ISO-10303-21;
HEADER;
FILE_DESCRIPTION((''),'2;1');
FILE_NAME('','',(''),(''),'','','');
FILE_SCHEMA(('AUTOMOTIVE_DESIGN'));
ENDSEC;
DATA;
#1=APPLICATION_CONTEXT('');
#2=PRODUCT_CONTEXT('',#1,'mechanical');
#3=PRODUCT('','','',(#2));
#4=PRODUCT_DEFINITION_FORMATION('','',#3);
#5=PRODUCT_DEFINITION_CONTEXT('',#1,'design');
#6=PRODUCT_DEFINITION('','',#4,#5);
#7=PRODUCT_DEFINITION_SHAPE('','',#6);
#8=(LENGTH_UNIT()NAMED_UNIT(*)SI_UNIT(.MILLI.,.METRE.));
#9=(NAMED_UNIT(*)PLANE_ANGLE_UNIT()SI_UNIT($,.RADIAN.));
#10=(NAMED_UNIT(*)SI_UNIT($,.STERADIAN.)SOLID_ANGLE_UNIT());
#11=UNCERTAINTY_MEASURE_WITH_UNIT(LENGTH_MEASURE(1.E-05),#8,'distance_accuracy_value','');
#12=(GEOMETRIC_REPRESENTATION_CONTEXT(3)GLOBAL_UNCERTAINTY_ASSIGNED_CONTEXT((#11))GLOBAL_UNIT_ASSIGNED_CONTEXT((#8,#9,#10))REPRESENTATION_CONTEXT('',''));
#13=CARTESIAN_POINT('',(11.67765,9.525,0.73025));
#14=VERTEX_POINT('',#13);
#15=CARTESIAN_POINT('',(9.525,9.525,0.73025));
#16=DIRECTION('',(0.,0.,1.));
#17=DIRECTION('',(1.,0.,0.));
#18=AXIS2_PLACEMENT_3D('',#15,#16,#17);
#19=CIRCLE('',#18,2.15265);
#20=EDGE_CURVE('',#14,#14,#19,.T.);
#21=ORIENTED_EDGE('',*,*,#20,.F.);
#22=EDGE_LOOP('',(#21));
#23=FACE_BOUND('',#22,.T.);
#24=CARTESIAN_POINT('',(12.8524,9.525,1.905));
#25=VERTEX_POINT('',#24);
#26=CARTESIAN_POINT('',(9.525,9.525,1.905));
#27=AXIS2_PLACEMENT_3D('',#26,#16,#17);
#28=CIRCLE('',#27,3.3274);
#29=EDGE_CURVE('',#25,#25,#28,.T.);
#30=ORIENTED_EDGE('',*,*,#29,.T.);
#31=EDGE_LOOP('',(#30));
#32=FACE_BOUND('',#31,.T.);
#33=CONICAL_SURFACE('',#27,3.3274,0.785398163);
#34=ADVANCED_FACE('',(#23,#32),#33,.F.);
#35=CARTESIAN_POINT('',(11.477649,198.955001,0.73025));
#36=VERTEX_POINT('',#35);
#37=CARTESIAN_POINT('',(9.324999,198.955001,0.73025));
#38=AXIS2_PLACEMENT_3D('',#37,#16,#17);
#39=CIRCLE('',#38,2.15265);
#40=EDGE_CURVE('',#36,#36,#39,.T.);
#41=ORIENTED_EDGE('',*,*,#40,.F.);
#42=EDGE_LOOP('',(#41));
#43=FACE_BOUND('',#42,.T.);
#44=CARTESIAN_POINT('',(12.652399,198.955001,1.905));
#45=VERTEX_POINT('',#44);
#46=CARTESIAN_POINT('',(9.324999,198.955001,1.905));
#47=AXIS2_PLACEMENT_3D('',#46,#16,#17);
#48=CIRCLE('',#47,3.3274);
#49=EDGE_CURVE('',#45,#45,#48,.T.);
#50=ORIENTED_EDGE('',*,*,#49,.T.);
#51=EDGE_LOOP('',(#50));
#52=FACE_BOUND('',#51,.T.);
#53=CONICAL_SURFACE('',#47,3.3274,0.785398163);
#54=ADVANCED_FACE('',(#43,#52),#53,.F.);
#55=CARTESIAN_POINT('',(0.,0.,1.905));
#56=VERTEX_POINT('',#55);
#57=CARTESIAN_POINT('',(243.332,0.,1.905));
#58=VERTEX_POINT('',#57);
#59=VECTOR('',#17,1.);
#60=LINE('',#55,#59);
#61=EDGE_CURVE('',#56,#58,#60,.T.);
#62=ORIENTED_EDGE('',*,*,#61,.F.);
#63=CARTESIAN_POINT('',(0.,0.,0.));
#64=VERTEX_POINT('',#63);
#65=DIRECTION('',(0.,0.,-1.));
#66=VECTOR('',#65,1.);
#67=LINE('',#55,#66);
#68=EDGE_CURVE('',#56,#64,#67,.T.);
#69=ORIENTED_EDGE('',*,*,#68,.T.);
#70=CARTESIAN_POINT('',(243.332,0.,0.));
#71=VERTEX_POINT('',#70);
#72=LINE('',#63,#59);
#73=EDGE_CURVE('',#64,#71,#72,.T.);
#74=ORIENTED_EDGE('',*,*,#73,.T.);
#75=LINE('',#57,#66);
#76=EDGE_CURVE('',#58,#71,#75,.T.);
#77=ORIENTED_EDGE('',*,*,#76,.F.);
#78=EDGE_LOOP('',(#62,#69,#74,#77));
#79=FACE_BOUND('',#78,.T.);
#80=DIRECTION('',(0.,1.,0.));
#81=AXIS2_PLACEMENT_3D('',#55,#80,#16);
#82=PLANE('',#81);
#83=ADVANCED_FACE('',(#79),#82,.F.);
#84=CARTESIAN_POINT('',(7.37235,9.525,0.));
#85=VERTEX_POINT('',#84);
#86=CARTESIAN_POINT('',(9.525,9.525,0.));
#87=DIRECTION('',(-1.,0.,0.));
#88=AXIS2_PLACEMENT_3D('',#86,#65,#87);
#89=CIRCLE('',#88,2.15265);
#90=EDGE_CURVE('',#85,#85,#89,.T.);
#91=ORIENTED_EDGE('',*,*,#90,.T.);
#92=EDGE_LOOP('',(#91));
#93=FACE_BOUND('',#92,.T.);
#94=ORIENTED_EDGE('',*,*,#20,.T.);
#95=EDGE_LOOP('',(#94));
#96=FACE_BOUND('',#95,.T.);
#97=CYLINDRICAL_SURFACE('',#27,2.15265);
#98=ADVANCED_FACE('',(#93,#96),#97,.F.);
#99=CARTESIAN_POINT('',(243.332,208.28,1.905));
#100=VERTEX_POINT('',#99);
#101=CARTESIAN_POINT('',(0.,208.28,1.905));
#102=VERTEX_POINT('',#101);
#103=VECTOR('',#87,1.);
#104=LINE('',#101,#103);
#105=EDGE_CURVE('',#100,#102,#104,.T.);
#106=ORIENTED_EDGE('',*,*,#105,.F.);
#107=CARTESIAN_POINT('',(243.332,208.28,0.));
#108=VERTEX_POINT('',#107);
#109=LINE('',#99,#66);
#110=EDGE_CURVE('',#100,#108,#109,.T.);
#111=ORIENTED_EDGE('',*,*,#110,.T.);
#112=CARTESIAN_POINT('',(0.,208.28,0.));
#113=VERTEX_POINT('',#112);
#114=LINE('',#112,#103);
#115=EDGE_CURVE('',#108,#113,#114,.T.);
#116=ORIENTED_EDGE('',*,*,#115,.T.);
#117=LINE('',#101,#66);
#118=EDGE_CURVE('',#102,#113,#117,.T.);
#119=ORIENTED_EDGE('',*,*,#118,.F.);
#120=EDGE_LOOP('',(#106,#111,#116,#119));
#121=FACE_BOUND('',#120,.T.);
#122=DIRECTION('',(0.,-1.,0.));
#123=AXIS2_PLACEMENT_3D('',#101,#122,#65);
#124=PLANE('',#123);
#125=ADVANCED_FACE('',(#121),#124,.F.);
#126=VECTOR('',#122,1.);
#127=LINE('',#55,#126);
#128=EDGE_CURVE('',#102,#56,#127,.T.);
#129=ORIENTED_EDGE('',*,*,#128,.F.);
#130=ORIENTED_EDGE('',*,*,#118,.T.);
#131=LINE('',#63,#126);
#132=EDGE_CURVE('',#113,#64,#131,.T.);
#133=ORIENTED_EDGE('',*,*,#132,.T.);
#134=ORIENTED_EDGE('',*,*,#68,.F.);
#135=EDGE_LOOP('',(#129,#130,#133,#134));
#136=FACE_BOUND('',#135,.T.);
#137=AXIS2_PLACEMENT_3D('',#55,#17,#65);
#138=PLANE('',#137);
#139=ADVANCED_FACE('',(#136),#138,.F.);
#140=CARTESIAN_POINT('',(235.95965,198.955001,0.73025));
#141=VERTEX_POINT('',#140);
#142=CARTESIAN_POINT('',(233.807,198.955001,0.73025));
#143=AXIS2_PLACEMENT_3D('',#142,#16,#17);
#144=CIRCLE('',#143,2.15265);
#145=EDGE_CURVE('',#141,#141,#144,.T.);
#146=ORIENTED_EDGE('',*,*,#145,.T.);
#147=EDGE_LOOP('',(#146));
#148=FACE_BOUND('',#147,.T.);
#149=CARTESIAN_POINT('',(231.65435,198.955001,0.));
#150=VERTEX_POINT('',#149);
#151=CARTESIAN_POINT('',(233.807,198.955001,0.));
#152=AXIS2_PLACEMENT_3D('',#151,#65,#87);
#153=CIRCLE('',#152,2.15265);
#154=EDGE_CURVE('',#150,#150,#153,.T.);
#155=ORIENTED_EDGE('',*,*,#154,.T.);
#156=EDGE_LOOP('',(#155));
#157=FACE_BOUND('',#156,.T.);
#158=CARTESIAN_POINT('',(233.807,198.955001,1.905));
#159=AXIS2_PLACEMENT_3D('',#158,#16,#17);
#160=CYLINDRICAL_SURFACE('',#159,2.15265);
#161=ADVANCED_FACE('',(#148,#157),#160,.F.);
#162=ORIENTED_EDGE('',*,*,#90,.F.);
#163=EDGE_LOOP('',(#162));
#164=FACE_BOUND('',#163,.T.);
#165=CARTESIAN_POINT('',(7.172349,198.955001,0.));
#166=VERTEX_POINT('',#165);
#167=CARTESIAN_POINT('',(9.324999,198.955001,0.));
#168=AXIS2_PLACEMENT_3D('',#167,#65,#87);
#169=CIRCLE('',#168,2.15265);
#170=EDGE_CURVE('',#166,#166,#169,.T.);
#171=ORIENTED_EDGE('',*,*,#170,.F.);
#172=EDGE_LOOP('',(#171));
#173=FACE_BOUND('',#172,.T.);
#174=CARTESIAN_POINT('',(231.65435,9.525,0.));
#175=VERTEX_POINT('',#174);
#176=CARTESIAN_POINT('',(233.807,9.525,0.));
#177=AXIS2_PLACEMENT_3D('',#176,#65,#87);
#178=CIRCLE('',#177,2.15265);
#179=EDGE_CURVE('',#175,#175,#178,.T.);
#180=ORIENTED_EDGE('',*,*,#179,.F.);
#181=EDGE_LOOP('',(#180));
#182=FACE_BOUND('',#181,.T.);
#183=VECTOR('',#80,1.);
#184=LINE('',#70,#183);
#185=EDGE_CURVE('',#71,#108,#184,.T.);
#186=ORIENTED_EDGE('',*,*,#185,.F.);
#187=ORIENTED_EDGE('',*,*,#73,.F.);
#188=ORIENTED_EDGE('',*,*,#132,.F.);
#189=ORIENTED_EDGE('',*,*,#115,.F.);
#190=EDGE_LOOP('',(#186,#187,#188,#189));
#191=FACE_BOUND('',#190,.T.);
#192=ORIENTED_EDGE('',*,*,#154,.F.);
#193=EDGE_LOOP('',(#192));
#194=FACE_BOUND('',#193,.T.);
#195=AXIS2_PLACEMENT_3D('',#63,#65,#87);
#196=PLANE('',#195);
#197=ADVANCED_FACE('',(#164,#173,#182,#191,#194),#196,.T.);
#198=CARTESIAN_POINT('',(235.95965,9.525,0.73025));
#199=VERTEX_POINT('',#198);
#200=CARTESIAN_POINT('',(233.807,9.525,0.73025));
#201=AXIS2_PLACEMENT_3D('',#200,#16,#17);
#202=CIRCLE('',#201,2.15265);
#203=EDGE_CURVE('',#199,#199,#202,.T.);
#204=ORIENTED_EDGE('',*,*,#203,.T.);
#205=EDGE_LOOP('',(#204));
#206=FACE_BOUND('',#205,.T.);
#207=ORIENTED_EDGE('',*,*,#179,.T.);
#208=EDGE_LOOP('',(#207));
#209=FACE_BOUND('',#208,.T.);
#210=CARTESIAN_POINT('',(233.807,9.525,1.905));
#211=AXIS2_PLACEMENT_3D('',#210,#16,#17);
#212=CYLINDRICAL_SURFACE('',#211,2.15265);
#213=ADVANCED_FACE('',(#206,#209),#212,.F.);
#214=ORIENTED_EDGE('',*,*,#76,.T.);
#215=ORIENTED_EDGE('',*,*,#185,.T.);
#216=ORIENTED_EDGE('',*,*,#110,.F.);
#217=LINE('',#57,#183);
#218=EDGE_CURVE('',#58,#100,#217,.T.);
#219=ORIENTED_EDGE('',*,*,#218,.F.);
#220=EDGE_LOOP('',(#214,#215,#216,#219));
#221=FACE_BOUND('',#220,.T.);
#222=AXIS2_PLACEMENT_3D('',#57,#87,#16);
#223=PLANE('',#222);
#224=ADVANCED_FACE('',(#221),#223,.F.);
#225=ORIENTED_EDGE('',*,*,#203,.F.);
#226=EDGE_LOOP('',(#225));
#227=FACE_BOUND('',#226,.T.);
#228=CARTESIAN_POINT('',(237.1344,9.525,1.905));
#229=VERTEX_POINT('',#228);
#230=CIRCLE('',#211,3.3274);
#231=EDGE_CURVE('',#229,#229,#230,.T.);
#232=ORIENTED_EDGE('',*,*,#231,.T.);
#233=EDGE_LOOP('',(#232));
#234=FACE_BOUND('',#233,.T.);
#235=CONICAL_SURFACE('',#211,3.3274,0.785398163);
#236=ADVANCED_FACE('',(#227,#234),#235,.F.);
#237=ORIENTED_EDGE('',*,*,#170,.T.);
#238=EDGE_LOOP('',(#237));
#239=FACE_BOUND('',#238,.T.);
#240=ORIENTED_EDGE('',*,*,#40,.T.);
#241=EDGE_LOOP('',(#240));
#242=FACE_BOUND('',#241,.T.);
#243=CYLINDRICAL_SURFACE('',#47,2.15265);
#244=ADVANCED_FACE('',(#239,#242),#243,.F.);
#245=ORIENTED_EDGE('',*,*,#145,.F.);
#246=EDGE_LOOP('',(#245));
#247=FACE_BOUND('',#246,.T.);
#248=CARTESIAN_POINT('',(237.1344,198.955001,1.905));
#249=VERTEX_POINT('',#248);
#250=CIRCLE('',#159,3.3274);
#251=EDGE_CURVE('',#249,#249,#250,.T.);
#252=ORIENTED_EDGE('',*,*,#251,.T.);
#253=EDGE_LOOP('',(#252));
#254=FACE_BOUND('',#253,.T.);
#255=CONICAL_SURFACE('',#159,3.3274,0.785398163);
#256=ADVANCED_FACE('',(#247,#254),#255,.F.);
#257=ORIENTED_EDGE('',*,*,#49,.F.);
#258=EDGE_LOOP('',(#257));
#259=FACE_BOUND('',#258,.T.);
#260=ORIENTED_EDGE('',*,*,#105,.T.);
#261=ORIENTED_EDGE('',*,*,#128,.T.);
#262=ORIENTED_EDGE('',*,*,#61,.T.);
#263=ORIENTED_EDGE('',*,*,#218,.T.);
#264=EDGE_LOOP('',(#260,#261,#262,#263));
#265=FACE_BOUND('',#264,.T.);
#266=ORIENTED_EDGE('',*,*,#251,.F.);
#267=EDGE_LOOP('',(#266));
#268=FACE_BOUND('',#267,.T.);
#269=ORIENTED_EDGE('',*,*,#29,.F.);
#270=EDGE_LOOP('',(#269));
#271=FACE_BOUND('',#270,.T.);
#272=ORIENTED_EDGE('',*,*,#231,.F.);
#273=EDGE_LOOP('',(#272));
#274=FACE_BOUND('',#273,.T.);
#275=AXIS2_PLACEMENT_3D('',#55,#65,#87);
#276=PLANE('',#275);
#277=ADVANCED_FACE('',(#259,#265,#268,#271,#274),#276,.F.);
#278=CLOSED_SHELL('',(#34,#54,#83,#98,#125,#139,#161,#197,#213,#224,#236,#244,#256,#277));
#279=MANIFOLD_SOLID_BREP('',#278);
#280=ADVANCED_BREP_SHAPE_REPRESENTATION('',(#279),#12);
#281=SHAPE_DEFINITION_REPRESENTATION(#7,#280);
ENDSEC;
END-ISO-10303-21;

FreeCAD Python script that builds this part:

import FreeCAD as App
import Part
import Sketcher
from FreeCAD import Vector
Q = App.Units.Quantity

doc = App.newDocument("Part")
body = doc.addObject("PartDesign::Body", "Body")

sketch1 = body.newObject("Sketcher::SketchObject", "Sketch")
sketch1.AttachmentSupport = (doc.getObject("XY_Plane"), [""])
sketch1.MapMode = "FlatFace"
sketch1.addGeometry([
    Part.LineSegment(Vector(0, 208.28, 0), Vector(0, 0, 0)),
    Part.LineSegment(Vector(0, 0, 0), Vector(243.332, 0, 0)),
    Part.LineSegment(Vector(243.332, 0, 0), Vector(243.332, 208.28, 0)),
    Part.LineSegment(Vector(243.332, 208.28, 0), Vector(0, 208.28, 0)),
], False)
sketch1.addConstraint([
    Sketcher.Constraint("Coincident", 0, 2, 1, 1),
    Sketcher.Constraint("Coincident", 1, 2, 2, 1),
    Sketcher.Constraint("Coincident", 2, 2, 3, 1),
    Sketcher.Constraint("Coincident", 3, 2, 0, 1),
    Sketcher.Constraint("Vertical", 0),
    Sketcher.Constraint("Horizontal", 1),
    Sketcher.Constraint("Vertical", 2),
    Sketcher.Constraint("Horizontal", 3),
    Sketcher.Constraint("Coincident", 0, 2, -1, 1),
    Sketcher.Constraint("DistanceY", 0, 2, 0, 1, Q("8.2 in")),
    Sketcher.Constraint("DistanceX", 1, 1, 1, 2, Q("9.58 in")),
])
pad1 = body.newObject("PartDesign::Pad", "Pad")
pad1.Profile = sketch1
pad1.Length = Q("0.075 in")

sketch2 = body.newObject("Sketcher::SketchObject", "Sketch001")
sketch2.AttachmentSupport = (doc.getObject("YZ_Plane"), [""])
sketch2.MapMode = "FlatFace"
sketch2.AttachmentOffset = App.Placement(Vector(0, 0, 9.324999), App.Rotation())
sketch2.addGeometry([
    Part.LineSegment(Vector(198.955001, 0, 0), Vector(198.955001, 1.905, 0)),
    Part.LineSegment(Vector(198.955001, 1.905, 0), Vector(195.627601, 1.905, 0)),
    Part.LineSegment(Vector(195.627601, 1.905, 0), Vector(196.802351, 0.73025, 0)),
    Part.LineSegment(Vector(196.802351, 0.73025, 0), Vector(196.802351, 0, 0)),
    Part.LineSegment(Vector(196.802351, 0, 0), Vector(198.955001, 0, 0)),
], False)
sketch2.addGeometry(Part.LineSegment(Vector(198.955001, 1.905, 0), Vector(198.955001, 0, 0)), True)
sketch2.addConstraint([
    Sketcher.Constraint("Coincident", 0, 2, 1, 1),
    Sketcher.Constraint("Coincident", 1, 2, 2, 1),
    Sketcher.Constraint("Coincident", 2, 2, 3, 1),
    Sketcher.Constraint("Coincident", 3, 2, 4, 1),
    Sketcher.Constraint("Coincident", 4, 2, 0, 1),
    Sketcher.Constraint("Vertical", 0),
    Sketcher.Constraint("Horizontal", 1),
    Sketcher.Constraint("Vertical", 3),
    Sketcher.Constraint("Horizontal", 4),
    Sketcher.Constraint("Vertical", 5),
    Sketcher.Constraint("Coincident", 5, 1, 0, 2),
    Sketcher.Constraint("PointOnObject", 3, 2, -1),
    Sketcher.Constraint("PointOnObject", 5, 2, -1),
    Sketcher.Constraint("Angle", 2, Q("-45 deg")),
    Sketcher.Constraint("DistanceX", 1, 2, 1, 1, Q("0.131 in")),
    Sketcher.Constraint("DistanceY", 0, 1, 0, 2, Q("0.075 in")),
    Sketcher.Constraint("DistanceX", 4, 1, 4, 2, Q("2.15265 mm")),
    Sketcher.Constraint("DistanceX", -1, 1, 0, 2, Q("198.955001 mm")),
])
groove = body.newObject("PartDesign::Groove", "Groove")
groove.Profile = sketch2
groove.ReferenceAxis = (sketch2, ["Axis0"])
groove.Angle = 360
doc.recompute()

linearpattern = body.newObject("PartDesign::LinearPattern", "LinearPattern")
linearpattern.Originals = [groove]
linearpattern.Direction = (doc.getObject("X_Axis"), [""])
linearpattern.Mode = "offset"
linearpattern.Offset = 224.482001
linearpattern.Occurrences = 2
body.Tip = linearpattern
doc.recompute()

datumline = body.newObject("PartDesign::Line", "DatumLine")
datumline.Placement = App.Placement(Vector(0, 0, 0), App.Rotation(Vector(0, 0, 1), Vector(0.764252364, -0.6449173, 0)))
linearpattern2 = body.newObject("PartDesign::LinearPattern", "LinearPattern001")
linearpattern2.Originals = [groove]
linearpattern2.Direction = (datumline, [""])
linearpattern2.Mode = "offset"
linearpattern2.Offset = 293.727585
linearpattern2.Occurrences = 2
body.Tip = linearpattern2
doc.recompute()

datumline2 = body.newObject("PartDesign::Line", "DatumLine001")
datumline2.Placement = App.Placement(Vector(0, 0, 0), App.Rotation(Vector(0, 0, 1), Vector(0.001055804, -0.999999443, 0)))
linearpattern3 = body.newObject("PartDesign::LinearPattern", "LinearPattern002")
linearpattern3.Originals = [groove]
linearpattern3.Direction = (datumline2, [""])
linearpattern3.Mode = "offset"
linearpattern3.Offset = 189.430107
linearpattern3.Occurrences = 2
body.Tip = linearpattern3

doc.recompute()
